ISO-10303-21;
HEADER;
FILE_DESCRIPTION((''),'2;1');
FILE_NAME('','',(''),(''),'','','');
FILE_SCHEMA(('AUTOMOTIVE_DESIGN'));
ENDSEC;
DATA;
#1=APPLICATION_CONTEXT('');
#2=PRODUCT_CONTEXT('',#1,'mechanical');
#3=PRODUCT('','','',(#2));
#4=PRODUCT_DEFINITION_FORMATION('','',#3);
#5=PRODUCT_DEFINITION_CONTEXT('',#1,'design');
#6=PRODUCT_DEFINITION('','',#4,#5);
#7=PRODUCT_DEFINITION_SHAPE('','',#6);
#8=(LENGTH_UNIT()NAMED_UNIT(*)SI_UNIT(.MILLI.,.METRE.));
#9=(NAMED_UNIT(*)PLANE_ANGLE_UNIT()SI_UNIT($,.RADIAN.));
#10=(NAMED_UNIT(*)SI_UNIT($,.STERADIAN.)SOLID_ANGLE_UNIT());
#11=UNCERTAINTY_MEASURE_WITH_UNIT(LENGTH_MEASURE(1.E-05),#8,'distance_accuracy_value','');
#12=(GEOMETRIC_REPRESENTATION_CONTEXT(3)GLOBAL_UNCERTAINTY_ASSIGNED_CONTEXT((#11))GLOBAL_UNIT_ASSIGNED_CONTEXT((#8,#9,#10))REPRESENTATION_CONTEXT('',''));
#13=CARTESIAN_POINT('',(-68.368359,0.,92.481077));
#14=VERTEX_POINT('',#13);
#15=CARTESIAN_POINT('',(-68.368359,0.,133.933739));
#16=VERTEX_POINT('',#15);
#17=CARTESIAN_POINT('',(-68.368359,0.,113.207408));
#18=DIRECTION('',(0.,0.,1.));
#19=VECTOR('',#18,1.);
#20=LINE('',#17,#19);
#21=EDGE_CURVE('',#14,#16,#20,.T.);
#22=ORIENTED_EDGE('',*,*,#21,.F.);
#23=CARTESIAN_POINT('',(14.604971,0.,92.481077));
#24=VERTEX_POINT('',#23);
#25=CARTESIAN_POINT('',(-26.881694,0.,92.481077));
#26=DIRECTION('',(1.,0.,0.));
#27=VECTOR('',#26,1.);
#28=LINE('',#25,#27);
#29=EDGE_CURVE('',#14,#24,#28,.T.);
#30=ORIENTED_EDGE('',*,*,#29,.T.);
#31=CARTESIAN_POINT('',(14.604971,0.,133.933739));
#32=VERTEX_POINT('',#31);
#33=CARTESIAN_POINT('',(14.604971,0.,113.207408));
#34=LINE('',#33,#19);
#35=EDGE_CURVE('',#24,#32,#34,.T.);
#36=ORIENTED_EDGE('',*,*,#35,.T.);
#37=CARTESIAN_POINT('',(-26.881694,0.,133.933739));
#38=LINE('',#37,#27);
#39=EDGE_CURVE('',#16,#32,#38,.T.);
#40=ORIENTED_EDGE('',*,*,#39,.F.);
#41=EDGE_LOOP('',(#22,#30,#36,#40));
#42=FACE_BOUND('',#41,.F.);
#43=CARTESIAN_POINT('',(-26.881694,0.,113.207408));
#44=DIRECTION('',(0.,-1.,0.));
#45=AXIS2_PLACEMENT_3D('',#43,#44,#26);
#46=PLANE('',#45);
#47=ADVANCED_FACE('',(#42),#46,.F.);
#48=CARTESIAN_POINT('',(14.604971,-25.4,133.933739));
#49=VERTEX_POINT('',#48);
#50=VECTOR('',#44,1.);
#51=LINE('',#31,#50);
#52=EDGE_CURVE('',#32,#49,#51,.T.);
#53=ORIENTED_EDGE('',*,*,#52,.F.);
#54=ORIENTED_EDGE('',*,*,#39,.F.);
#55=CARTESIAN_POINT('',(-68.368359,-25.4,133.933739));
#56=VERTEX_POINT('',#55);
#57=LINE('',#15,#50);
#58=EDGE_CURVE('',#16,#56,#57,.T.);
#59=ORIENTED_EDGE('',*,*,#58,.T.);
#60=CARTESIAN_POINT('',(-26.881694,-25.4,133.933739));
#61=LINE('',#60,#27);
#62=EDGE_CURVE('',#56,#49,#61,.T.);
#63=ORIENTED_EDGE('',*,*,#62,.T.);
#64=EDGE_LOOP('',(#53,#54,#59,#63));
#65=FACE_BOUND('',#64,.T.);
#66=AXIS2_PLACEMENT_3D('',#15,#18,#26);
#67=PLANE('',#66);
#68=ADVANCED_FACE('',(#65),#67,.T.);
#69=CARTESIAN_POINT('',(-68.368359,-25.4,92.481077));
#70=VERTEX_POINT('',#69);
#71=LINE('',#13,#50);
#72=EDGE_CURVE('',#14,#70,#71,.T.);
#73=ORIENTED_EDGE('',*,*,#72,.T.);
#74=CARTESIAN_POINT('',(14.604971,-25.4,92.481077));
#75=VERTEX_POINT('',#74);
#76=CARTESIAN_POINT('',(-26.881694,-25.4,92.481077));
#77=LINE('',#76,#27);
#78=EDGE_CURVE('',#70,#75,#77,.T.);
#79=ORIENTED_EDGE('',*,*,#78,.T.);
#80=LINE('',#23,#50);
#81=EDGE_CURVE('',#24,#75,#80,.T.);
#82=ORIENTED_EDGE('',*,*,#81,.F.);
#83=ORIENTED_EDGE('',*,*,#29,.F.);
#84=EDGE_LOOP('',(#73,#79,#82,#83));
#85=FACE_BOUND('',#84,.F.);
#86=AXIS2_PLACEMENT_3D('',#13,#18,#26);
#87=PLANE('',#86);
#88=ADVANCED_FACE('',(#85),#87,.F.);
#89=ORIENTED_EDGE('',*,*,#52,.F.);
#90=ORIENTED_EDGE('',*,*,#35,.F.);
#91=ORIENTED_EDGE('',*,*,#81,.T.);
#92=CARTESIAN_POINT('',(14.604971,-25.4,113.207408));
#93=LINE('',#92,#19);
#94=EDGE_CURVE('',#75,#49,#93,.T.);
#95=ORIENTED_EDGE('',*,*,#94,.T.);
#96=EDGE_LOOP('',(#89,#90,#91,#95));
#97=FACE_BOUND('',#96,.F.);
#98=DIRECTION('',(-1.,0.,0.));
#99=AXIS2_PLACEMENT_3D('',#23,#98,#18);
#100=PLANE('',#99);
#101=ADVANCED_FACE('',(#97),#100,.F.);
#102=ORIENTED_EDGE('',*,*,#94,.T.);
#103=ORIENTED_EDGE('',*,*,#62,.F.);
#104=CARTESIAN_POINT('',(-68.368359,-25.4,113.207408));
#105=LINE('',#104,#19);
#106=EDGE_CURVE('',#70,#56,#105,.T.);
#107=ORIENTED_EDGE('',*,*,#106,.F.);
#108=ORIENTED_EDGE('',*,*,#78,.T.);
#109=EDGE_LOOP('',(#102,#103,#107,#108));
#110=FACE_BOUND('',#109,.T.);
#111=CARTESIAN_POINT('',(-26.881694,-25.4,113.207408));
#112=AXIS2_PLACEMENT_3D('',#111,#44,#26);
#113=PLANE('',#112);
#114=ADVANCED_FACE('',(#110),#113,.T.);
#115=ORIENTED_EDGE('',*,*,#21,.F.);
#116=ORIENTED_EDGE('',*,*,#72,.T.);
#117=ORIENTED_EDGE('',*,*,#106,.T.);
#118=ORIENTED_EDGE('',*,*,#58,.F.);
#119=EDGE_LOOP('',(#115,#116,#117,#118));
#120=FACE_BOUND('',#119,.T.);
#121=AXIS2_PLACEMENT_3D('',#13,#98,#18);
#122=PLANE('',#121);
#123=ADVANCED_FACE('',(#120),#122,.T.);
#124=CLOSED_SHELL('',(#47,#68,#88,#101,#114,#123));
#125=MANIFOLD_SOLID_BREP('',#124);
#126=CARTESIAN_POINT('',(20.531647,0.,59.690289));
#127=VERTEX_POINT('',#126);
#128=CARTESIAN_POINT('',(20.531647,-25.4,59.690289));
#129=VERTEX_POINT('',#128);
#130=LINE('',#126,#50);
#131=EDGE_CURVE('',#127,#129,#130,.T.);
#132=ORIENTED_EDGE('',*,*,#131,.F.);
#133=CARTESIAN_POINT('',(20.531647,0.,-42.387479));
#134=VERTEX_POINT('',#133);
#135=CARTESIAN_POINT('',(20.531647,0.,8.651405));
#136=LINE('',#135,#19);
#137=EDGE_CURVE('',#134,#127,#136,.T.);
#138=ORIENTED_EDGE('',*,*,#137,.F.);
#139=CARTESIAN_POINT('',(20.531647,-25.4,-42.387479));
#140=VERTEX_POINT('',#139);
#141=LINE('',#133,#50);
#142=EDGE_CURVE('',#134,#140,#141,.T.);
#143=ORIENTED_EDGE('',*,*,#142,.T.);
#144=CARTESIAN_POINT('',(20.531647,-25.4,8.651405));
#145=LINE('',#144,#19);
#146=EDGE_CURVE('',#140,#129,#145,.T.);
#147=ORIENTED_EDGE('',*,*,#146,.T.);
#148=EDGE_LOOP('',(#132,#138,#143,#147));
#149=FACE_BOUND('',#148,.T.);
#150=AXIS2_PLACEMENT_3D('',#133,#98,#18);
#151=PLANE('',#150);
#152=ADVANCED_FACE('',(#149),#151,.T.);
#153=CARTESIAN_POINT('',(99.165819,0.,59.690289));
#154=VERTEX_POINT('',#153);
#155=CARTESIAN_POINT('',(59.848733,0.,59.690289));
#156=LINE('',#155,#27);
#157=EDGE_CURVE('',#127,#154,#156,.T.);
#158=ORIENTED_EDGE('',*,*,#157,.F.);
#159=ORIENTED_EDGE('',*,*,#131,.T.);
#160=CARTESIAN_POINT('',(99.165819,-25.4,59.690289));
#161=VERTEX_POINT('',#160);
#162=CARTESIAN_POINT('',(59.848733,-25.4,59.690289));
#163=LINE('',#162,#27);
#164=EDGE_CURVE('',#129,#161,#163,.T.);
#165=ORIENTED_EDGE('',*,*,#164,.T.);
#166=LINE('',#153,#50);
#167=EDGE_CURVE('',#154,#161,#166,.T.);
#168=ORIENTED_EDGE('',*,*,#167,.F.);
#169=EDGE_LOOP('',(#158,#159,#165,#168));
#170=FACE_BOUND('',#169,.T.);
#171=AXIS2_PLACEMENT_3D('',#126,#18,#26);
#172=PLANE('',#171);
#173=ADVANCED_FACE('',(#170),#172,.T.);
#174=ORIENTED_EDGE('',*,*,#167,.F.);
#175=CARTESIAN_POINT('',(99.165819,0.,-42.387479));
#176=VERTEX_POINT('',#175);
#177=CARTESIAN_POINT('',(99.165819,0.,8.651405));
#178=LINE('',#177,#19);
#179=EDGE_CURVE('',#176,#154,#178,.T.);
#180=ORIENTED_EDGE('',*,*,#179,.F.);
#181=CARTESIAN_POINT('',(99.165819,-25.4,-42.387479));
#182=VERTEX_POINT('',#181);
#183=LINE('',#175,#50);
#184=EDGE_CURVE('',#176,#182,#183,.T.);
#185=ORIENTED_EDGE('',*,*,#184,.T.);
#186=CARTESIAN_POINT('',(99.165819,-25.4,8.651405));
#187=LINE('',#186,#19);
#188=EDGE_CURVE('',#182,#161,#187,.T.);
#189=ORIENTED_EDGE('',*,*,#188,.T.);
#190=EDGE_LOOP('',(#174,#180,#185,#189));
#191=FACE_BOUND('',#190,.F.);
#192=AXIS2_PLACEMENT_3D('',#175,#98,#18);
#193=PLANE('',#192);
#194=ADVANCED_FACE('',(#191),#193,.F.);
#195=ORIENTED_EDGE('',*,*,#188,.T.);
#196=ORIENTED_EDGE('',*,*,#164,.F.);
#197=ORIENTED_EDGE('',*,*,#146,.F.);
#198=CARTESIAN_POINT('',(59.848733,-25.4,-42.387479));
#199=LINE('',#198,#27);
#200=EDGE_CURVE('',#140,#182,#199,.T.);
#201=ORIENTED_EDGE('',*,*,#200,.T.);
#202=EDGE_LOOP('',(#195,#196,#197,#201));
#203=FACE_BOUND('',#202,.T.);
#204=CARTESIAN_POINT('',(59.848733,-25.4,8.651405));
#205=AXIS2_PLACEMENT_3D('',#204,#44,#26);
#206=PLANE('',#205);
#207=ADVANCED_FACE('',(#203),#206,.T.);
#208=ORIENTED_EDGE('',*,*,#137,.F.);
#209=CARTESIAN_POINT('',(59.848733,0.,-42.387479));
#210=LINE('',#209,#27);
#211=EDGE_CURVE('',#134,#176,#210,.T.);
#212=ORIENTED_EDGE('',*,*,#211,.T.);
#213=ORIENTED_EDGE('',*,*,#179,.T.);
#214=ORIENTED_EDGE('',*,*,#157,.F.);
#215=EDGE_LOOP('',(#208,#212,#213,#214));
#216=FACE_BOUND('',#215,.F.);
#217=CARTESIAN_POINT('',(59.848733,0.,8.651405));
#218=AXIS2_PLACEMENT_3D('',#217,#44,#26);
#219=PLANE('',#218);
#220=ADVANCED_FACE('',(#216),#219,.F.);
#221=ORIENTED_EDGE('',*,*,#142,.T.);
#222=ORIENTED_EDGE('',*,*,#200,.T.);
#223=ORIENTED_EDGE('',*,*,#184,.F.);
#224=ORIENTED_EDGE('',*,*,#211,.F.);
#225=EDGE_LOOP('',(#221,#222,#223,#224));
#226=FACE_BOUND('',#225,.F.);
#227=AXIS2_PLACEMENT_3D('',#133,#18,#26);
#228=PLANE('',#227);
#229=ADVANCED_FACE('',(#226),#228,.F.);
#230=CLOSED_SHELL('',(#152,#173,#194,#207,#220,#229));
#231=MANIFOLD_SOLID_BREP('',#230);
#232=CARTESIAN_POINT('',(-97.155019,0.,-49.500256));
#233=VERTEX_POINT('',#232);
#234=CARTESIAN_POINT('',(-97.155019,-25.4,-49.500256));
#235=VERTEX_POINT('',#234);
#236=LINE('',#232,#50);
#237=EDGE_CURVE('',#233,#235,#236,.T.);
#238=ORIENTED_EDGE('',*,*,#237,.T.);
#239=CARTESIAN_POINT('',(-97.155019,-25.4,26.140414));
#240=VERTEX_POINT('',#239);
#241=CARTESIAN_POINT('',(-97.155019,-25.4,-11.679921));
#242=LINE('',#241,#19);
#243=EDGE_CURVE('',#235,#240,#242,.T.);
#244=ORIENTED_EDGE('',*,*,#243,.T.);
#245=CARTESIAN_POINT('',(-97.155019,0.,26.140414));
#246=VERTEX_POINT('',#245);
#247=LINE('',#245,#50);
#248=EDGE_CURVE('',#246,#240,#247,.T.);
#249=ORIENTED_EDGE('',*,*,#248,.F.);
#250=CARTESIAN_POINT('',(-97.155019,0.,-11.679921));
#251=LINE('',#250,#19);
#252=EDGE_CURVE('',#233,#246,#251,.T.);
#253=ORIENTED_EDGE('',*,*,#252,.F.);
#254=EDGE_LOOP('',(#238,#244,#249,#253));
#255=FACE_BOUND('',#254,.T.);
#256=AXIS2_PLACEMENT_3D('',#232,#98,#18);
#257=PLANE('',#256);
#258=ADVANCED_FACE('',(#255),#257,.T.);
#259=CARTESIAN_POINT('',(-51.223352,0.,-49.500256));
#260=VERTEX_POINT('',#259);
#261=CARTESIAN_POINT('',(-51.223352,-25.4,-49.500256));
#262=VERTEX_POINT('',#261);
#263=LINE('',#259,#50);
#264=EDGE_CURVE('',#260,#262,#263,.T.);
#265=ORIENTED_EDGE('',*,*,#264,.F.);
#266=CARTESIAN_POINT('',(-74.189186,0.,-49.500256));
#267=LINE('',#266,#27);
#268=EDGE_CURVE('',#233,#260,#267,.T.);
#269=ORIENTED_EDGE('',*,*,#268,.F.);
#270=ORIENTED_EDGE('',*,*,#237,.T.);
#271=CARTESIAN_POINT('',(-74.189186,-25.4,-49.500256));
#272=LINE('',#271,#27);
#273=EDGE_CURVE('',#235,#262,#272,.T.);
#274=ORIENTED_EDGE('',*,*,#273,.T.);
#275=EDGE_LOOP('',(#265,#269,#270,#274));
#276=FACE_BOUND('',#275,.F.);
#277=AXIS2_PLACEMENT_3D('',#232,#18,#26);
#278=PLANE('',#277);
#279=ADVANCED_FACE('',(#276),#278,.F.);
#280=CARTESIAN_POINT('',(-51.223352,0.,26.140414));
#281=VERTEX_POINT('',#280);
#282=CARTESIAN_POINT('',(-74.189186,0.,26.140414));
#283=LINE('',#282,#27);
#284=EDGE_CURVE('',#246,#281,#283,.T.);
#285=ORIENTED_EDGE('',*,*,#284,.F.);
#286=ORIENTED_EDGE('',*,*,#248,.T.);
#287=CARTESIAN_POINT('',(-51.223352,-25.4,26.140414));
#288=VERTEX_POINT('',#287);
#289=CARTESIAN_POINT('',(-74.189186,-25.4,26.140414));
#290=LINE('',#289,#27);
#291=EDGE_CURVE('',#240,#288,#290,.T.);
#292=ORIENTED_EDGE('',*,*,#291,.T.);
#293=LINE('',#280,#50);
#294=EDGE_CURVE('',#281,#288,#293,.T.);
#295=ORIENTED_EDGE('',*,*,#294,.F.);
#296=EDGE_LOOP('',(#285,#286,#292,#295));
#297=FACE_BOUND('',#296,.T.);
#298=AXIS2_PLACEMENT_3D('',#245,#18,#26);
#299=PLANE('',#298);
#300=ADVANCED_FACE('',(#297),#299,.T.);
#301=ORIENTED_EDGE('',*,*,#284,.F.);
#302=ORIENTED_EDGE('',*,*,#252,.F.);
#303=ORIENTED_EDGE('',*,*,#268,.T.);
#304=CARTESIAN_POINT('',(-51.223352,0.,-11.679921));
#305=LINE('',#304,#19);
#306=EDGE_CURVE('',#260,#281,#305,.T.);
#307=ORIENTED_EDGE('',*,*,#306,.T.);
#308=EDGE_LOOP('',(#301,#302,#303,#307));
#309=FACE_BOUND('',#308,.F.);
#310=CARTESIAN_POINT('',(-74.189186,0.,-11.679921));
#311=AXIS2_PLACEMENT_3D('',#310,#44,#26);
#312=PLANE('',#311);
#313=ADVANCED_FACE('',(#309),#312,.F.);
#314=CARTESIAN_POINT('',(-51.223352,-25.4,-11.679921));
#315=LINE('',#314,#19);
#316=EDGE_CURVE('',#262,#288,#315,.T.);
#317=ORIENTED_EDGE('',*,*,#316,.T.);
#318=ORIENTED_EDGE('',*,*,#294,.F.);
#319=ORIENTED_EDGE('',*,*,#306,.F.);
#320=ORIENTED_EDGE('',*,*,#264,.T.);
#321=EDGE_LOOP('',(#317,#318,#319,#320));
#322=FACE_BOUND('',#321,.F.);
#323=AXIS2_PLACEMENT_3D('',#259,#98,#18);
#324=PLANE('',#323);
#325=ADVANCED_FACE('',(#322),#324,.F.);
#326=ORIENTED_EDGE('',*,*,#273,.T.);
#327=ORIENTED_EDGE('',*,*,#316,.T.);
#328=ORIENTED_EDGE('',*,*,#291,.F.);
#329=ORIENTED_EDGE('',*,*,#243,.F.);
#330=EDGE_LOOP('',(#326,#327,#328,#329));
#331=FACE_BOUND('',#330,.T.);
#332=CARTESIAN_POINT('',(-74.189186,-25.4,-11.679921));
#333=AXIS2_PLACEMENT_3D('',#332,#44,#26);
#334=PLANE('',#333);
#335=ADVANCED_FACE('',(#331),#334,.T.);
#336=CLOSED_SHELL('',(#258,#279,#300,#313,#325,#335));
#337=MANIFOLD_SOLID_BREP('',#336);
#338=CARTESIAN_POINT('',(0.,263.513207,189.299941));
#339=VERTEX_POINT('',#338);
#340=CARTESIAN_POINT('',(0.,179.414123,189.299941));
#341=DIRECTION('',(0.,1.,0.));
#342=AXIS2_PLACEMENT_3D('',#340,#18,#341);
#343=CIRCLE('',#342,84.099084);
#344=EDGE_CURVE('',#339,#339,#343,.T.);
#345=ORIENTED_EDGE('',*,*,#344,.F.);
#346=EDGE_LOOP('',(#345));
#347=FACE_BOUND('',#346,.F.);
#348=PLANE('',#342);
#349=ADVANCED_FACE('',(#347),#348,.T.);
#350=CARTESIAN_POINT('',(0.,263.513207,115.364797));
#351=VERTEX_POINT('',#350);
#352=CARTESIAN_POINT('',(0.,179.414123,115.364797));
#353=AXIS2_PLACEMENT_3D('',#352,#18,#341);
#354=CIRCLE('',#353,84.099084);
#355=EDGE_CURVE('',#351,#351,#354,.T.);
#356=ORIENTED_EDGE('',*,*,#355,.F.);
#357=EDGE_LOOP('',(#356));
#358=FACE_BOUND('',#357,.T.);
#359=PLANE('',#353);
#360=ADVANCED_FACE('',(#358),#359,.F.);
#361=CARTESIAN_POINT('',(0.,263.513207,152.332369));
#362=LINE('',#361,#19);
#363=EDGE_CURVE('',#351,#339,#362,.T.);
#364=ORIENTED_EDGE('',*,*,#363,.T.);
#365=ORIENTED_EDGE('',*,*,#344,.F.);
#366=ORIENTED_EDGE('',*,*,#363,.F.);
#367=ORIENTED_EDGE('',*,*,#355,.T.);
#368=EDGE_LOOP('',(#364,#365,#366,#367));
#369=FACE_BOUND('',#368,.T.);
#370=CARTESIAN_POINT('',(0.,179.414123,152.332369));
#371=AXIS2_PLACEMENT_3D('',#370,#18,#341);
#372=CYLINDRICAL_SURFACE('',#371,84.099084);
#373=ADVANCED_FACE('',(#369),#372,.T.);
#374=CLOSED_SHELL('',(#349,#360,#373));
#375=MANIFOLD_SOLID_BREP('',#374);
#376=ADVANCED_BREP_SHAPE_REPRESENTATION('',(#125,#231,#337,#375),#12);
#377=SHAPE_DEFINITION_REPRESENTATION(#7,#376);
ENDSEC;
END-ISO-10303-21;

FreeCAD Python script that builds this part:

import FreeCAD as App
import Part
import Sketcher
from FreeCAD import Vector
Q = App.Units.Quantity


def add_polygon(sketch, points):
    """Adds a closed chain of lines whose ends are joined by coincident constraints."""
    first, n = sketch.GeometryCount, len(points)
    for a, b in zip(points, points[1:] + points[:1]):
        sketch.addGeometry(Part.LineSegment(App.Vector(*a, 0), App.Vector(*b, 0)), False)
    for i in range(n):
        sketch.addConstraint(Sketcher.Constraint("Coincident", first + i, 2, first + (i + 1) % n, 1))

doc = App.newDocument("Part")
body = doc.addObject("PartDesign::Body", "Body")
body.AllowCompound = True

sketch1 = body.newObject("Sketcher::SketchObject", "Sketch")
sketch1.AttachmentSupport = (doc.getObject("XZ_Plane"), [""])
sketch1.MapMode = "FlatFace"
add_polygon(sketch1, [(-68.368359, 133.933739), (-68.368359, 92.481077), (14.604971, 92.481077), (14.604971, 133.933739)])
add_polygon(sketch1, [(-97.155019, 26.140414), (-97.155019, -49.500256), (-51.223352, -49.500256), (-51.223352, 26.140414)])
add_polygon(sketch1, [(20.531647, 59.690289), (20.531647, -42.387479), (99.165819, -42.387479), (99.165819, 59.690289)])
sketch1.addConstraint(Sketcher.Constraint("Vertical", 0))
sketch1.addConstraint(Sketcher.Constraint("Horizontal", 1))
sketch1.addConstraint(Sketcher.Constraint("Vertical", 2))
sketch1.addConstraint(Sketcher.Constraint("Horizontal", 3))
sketch1.addConstraint(Sketcher.Constraint("Vertical", 4))
sketch1.addConstraint(Sketcher.Constraint("Horizontal", 5))
sketch1.addConstraint(Sketcher.Constraint("Vertical", 6))
sketch1.addConstraint(Sketcher.Constraint("Horizontal", 7))
sketch1.addConstraint(Sketcher.Constraint("Vertical", 8))
sketch1.addConstraint(Sketcher.Constraint("Horizontal", 9))
sketch1.addConstraint(Sketcher.Constraint("Vertical", 10))
sketch1.addConstraint(Sketcher.Constraint("Horizontal", 11))
sketch1.addConstraint(Sketcher.Constraint("DistanceX", 5, 2, 8, 2, Q("2.825 in")))
sketch1.addConstraint(Sketcher.Constraint("DistanceX", 1, 1, 1, 2, Q("82.973331 mm")))
sketch1.addConstraint(Sketcher.Constraint("DistanceY", 0, 2, 0, 1, Q("41.452661 mm")))
sketch1.addConstraint(Sketcher.Constraint("DistanceY", 4, 2, 4, 1, Q("75.640671 mm")))
sketch1.addConstraint(Sketcher.Constraint("DistanceX", 5, 1, 5, 2, Q("45.931667 mm")))
sketch1.addConstraint(Sketcher.Constraint("DistanceX", 9, 1, 9, 2, Q("78.634173 mm")))
sketch1.addConstraint(Sketcher.Constraint("DistanceY", 8, 2, 8, 1, Q("102.077767 mm")))
sketch1.addConstraint(Sketcher.Constraint("DistanceX", 0, 2, -1, 1, Q("68.368359 mm")))
sketch1.addConstraint(Sketcher.Constraint("DistanceY", -1, 1, 2, 2, Q("133.933739 mm")))
sketch1.addConstraint(Sketcher.Constraint("DistanceX", 4, 2, -1, 1, Q("97.155019 mm")))
sketch1.addConstraint(Sketcher.Constraint("DistanceY", 8, 2, -1, 1, Q("42.387479 mm")))
sketch1.addConstraint(Sketcher.Constraint("DistanceY", 4, 2, -1, 1, Q("49.500256 mm")))
pad1 = body.newObject("PartDesign::Pad", "Pad")
pad1.Profile = sketch1
pad1.Length = Q("1 in")
body2 = doc.addObject("PartDesign::Body", "Body001")

sketch2 = body2.newObject("Sketcher::SketchObject", "Sketch001")
sketch2.AttachmentSupport = (doc.getObject("YZ_Plane001"), [""])
sketch2.MapMode = "FlatFace"
add_polygon(sketch2, [(179.414123, 189.299941), (179.414123, 115.364797), (263.513207, 115.364797), (263.513207, 189.299941)])
sketch2.addGeometry(Part.LineSegment(Vector(179.414123, 115.364797, 0), Vector(179.414123, 189.299941, 0)), True)
sketch2.addConstraint(Sketcher.Constraint("Vertical", 0))
sketch2.addConstraint(Sketcher.Constraint("Horizontal", 1))
sketch2.addConstraint(Sketcher.Constraint("Vertical", 2))
sketch2.addConstraint(Sketcher.Constraint("Horizontal", 3))
sketch2.addConstraint(Sketcher.Constraint("Vertical", 4))
sketch2.addConstraint(Sketcher.Constraint("Coincident", 4, 1, 0, 2))
sketch2.addConstraint(Sketcher.Constraint("Horizontal", 2, 2, 4, 2))
sketch2.addConstraint(Sketcher.Constraint("DistanceX", 1, 1, 1, 2, Q("84.099084 mm")))
sketch2.addConstraint(Sketcher.Constraint("DistanceY", 0, 2, 0, 1, Q("73.935144 mm")))
sketch2.addConstraint(Sketcher.Constraint("DistanceY", -1, 1, 2, 2, Q("189.299941 mm")))
sketch2.addConstraint(Sketcher.Constraint("DistanceX", -1, 1, 0, 2, Q("179.414123 mm")))
revolution = body2.newObject("PartDesign::Revolution", "Revolution")
revolution.Profile = sketch2
revolution.ReferenceAxis = (sketch2, ["Axis0"])
revolution.Angle = 360

doc.recompute()
